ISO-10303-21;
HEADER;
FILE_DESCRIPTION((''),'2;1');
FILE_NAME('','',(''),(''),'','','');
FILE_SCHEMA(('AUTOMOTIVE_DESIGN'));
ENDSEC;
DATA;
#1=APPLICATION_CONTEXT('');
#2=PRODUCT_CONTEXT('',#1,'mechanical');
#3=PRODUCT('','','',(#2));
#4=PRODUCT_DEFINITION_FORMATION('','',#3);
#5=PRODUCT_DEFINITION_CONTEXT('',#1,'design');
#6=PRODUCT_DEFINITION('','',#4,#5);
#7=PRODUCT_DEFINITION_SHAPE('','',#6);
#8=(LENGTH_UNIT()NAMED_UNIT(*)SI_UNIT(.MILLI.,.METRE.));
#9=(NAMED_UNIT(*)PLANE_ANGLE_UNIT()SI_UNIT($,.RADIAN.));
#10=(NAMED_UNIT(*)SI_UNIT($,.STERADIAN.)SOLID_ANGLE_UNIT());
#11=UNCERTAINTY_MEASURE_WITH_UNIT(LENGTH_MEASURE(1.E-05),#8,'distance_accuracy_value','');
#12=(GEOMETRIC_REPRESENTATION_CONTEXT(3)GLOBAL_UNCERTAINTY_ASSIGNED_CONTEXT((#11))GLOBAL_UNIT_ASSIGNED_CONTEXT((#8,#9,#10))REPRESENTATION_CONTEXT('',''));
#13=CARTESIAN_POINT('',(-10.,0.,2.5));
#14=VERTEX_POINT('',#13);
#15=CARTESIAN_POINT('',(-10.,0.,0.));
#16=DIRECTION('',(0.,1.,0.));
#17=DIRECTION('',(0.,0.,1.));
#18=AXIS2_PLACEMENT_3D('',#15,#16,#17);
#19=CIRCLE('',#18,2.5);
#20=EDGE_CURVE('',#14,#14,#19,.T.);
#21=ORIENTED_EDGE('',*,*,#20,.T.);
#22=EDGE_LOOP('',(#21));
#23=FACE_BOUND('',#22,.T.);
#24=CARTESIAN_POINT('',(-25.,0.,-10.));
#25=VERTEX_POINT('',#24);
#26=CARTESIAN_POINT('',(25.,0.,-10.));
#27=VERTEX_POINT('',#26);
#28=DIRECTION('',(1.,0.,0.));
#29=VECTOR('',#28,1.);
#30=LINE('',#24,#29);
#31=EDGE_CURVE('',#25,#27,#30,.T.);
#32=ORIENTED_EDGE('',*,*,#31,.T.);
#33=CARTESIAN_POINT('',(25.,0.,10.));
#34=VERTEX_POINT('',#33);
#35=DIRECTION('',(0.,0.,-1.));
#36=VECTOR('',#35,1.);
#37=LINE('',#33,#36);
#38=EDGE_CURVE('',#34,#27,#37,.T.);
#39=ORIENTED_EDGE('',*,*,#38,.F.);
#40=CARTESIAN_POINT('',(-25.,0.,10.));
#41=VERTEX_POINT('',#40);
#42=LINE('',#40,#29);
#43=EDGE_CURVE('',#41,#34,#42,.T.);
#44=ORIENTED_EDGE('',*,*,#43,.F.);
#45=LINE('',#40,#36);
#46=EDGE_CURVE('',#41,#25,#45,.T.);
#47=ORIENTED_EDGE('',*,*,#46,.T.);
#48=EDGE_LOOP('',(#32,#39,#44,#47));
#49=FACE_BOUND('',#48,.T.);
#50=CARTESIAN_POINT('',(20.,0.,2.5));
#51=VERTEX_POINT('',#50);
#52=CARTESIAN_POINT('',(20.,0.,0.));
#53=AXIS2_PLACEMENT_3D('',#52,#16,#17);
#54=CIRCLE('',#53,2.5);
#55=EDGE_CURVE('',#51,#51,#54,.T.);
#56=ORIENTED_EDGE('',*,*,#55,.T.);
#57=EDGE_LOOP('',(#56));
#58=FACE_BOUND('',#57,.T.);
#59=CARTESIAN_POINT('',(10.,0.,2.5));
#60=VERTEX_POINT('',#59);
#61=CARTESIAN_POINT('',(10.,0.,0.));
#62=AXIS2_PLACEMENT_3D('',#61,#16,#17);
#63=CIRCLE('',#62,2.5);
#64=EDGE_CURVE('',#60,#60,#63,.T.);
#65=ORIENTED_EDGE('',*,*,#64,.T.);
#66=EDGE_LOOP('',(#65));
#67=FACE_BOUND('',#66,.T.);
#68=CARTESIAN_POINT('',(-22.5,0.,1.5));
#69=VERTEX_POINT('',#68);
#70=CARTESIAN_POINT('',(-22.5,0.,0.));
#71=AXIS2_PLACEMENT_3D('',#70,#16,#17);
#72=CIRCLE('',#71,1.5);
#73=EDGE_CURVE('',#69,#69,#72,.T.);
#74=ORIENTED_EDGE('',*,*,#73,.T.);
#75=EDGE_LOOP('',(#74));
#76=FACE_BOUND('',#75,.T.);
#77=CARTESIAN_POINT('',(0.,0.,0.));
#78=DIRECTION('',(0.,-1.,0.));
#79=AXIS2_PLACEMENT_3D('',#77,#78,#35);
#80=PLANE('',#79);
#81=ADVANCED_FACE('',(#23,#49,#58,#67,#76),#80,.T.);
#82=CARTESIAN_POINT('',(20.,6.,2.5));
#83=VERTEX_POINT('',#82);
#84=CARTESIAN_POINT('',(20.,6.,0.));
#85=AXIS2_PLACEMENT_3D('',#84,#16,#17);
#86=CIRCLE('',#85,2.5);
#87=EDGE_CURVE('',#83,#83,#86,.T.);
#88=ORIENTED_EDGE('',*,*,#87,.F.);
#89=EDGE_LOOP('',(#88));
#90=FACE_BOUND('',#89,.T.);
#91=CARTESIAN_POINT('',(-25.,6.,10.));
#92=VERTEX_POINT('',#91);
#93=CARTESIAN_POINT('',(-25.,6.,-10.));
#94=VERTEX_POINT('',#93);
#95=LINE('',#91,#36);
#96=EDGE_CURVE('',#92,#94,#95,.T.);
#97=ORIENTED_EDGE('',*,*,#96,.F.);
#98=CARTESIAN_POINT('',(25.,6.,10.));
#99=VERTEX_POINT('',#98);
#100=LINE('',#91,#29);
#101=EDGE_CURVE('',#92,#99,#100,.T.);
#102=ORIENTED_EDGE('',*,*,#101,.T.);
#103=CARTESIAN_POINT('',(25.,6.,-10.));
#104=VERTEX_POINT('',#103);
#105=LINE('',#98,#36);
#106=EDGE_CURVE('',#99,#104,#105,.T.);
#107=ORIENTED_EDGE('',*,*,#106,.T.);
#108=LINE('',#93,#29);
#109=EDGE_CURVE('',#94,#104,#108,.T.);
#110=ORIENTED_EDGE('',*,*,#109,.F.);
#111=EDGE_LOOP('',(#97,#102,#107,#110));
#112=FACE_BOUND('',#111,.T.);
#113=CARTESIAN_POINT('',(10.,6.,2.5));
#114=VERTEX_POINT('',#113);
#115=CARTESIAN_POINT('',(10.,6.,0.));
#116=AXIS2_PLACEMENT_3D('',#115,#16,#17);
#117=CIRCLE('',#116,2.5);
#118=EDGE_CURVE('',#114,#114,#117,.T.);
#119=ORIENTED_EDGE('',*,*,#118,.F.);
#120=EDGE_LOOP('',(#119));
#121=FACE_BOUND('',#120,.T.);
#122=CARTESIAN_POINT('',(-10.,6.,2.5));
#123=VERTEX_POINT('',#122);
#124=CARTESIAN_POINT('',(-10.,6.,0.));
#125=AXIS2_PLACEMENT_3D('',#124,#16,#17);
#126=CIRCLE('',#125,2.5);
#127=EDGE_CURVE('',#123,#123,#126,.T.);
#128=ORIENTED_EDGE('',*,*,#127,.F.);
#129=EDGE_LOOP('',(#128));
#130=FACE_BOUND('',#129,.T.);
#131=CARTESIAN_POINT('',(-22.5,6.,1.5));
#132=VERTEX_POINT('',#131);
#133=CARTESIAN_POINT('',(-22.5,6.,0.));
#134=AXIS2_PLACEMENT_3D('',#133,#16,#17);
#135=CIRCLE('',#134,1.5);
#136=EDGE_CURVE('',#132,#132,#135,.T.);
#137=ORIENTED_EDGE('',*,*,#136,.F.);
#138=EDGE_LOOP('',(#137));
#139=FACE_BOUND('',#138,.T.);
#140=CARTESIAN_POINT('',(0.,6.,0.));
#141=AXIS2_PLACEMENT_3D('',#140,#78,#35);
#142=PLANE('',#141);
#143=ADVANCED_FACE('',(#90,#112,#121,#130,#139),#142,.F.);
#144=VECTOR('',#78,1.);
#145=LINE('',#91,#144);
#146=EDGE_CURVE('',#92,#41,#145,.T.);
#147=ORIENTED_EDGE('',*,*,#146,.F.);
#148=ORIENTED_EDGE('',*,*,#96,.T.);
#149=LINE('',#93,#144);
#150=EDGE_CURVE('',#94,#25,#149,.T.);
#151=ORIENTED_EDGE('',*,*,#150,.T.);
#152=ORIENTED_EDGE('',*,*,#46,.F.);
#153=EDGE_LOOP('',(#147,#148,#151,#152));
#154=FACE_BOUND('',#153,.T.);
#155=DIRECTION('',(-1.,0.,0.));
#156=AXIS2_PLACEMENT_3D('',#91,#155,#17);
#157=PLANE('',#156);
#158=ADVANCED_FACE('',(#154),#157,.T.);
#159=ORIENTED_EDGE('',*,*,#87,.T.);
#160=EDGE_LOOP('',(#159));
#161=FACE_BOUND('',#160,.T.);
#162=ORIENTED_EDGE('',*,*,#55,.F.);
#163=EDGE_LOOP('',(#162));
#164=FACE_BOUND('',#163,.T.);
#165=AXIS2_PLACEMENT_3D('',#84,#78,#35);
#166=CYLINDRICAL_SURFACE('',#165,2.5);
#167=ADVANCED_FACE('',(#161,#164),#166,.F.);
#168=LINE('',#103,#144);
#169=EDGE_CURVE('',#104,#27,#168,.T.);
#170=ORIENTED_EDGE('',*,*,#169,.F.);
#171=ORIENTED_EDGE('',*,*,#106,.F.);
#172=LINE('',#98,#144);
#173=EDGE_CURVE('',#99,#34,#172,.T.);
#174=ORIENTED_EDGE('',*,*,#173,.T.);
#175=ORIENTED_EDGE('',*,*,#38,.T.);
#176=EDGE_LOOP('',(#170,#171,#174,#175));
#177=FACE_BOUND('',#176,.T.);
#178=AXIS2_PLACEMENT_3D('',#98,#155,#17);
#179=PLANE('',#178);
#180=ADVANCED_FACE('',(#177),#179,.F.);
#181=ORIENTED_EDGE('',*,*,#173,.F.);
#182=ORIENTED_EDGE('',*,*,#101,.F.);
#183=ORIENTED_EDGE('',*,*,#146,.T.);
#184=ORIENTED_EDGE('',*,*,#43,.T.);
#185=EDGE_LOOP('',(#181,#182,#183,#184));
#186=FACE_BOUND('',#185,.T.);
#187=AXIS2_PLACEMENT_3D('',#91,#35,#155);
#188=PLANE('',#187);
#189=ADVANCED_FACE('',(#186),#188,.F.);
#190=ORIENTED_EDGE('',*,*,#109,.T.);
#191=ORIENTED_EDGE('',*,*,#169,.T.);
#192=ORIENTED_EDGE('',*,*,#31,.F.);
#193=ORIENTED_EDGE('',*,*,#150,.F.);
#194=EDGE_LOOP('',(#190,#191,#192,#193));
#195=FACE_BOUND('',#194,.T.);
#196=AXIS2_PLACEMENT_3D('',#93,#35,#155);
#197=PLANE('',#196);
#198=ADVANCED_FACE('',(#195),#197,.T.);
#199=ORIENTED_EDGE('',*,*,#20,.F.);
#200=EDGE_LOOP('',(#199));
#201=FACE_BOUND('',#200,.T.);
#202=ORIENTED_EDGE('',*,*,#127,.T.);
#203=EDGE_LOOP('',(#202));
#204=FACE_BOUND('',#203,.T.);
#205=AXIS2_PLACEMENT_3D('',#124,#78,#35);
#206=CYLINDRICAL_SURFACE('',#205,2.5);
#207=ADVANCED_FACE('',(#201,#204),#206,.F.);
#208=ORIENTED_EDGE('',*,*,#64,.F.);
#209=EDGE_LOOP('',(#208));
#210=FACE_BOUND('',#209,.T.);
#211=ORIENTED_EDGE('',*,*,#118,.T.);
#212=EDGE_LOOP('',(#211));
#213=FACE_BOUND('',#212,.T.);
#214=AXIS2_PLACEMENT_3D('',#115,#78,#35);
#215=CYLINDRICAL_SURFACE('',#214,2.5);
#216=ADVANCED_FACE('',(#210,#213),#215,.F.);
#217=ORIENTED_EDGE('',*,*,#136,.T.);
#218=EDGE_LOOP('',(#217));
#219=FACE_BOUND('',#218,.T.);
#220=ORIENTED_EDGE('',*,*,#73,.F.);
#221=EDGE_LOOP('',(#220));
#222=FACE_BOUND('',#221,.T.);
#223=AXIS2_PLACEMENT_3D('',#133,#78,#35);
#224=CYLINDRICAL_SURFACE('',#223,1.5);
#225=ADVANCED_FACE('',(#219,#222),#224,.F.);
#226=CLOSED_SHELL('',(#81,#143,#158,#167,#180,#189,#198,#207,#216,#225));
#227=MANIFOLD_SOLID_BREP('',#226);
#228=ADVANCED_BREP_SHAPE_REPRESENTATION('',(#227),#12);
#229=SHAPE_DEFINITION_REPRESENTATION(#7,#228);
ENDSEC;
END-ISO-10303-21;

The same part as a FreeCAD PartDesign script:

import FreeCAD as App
import Part
import Sketcher
from FreeCAD import Vector


def add_polygon(sketch, points):
    """Adds a closed chain of lines whose ends are joined by coincident constraints."""
    first, n = sketch.GeometryCount, len(points)
    for a, b in zip(points, points[1:] + points[:1]):
        sketch.addGeometry(Part.LineSegment(App.Vector(*a, 0), App.Vector(*b, 0)), False)
    for i in range(n):
        sketch.addConstraint(Sketcher.Constraint("Coincident", first + i, 2, first + (i + 1) % n, 1))

doc = App.newDocument("Part")
body = doc.addObject("PartDesign::Body", "Body")

sketch1 = body.newObject("Sketcher::SketchObject", "Sketch")
sketch1.AttachmentSupport = (doc.getObject("XZ_Plane"), [""])
sketch1.MapMode = "FlatFace"
add_polygon(sketch1, [(-25, -10), (-25, 10), (25, 10), (25, -10)])
sketch1.addConstraint(Sketcher.Constraint("Vertical", 0))
sketch1.addConstraint(Sketcher.Constraint("Horizontal", 1))
sketch1.addConstraint(Sketcher.Constraint("Vertical", 2))
sketch1.addConstraint(Sketcher.Constraint("Horizontal", 3))
sketch1.addConstraint(Sketcher.Constraint("Symmetric", 0, 2, 2, 2, -1, 1))
sketch1.addConstraint(Sketcher.Constraint("DistanceX", 1, 1, 1, 2, 50.0))
sketch1.addConstraint(Sketcher.Constraint("DistanceY", 0, 1, 0, 2, 20.0))
pad1 = body.newObject("PartDesign::Pad", "Pad")
pad1.Profile = sketch1
pad1.Length = 6
pad1.Reversed = True

sketch2 = body.newObject("Sketcher::SketchObject", "Sketch001")
sketch2.AttachmentSupport = (doc.getObject("XZ_Plane"), [""])
sketch2.MapMode = "FlatFace"
sketch2.addGeometry(Part.Circle(Vector(20, 0, 0), Vector(0, 0, 1), 2.5), False)
sketch2.addGeometry(Part.Circle(Vector(-10, 0, 0), Vector(0, 0, 1), 2.5), False)
sketch2.addGeometry(Part.Circle(Vector(10, 0, 0), Vector(0, 0, 1), 2.5), False)
sketch2.addGeometry(Part.Circle(Vector(-22.5, 0, 0), Vector(0, 0, 1), 1.5), False)
sketch2.addConstraint(Sketcher.Constraint("Equal", 0, 1))
sketch2.addConstraint(Sketcher.Constraint("Equal", 1, 2))
sketch2.addConstraint(Sketcher.Constraint("Symmetric", 1, 3, 2, 3, -1, 1))
sketch2.addConstraint(Sketcher.Constraint("PointOnObject", 0, 3, -1))
sketch2.addConstraint(Sketcher.Constraint("PointOnObject", 1, 3, -1))
sketch2.addConstraint(Sketcher.Constraint("PointOnObject", 3, 3, -1))
sketch2.addConstraint(Sketcher.Constraint("Diameter", 0, 5.0))
sketch2.addConstraint(Sketcher.Constraint("Diameter", 3, 3.0))
sketch2.addConstraint(Sketcher.Constraint("DistanceX", -1, 1, 0, 3, 20.0))
sketch2.addConstraint(Sketcher.Constraint("DistanceX", 1, 3, -1, 1, 10.0))
sketch2.addConstraint(Sketcher.Constraint("DistanceX", 3, 3, -1, 1, 22.5))
pocket1 = body.newObject("PartDesign::Pocket", "Pocket")
pocket1.Profile = sketch2
pocket1.Length = 6

doc.recompute()
